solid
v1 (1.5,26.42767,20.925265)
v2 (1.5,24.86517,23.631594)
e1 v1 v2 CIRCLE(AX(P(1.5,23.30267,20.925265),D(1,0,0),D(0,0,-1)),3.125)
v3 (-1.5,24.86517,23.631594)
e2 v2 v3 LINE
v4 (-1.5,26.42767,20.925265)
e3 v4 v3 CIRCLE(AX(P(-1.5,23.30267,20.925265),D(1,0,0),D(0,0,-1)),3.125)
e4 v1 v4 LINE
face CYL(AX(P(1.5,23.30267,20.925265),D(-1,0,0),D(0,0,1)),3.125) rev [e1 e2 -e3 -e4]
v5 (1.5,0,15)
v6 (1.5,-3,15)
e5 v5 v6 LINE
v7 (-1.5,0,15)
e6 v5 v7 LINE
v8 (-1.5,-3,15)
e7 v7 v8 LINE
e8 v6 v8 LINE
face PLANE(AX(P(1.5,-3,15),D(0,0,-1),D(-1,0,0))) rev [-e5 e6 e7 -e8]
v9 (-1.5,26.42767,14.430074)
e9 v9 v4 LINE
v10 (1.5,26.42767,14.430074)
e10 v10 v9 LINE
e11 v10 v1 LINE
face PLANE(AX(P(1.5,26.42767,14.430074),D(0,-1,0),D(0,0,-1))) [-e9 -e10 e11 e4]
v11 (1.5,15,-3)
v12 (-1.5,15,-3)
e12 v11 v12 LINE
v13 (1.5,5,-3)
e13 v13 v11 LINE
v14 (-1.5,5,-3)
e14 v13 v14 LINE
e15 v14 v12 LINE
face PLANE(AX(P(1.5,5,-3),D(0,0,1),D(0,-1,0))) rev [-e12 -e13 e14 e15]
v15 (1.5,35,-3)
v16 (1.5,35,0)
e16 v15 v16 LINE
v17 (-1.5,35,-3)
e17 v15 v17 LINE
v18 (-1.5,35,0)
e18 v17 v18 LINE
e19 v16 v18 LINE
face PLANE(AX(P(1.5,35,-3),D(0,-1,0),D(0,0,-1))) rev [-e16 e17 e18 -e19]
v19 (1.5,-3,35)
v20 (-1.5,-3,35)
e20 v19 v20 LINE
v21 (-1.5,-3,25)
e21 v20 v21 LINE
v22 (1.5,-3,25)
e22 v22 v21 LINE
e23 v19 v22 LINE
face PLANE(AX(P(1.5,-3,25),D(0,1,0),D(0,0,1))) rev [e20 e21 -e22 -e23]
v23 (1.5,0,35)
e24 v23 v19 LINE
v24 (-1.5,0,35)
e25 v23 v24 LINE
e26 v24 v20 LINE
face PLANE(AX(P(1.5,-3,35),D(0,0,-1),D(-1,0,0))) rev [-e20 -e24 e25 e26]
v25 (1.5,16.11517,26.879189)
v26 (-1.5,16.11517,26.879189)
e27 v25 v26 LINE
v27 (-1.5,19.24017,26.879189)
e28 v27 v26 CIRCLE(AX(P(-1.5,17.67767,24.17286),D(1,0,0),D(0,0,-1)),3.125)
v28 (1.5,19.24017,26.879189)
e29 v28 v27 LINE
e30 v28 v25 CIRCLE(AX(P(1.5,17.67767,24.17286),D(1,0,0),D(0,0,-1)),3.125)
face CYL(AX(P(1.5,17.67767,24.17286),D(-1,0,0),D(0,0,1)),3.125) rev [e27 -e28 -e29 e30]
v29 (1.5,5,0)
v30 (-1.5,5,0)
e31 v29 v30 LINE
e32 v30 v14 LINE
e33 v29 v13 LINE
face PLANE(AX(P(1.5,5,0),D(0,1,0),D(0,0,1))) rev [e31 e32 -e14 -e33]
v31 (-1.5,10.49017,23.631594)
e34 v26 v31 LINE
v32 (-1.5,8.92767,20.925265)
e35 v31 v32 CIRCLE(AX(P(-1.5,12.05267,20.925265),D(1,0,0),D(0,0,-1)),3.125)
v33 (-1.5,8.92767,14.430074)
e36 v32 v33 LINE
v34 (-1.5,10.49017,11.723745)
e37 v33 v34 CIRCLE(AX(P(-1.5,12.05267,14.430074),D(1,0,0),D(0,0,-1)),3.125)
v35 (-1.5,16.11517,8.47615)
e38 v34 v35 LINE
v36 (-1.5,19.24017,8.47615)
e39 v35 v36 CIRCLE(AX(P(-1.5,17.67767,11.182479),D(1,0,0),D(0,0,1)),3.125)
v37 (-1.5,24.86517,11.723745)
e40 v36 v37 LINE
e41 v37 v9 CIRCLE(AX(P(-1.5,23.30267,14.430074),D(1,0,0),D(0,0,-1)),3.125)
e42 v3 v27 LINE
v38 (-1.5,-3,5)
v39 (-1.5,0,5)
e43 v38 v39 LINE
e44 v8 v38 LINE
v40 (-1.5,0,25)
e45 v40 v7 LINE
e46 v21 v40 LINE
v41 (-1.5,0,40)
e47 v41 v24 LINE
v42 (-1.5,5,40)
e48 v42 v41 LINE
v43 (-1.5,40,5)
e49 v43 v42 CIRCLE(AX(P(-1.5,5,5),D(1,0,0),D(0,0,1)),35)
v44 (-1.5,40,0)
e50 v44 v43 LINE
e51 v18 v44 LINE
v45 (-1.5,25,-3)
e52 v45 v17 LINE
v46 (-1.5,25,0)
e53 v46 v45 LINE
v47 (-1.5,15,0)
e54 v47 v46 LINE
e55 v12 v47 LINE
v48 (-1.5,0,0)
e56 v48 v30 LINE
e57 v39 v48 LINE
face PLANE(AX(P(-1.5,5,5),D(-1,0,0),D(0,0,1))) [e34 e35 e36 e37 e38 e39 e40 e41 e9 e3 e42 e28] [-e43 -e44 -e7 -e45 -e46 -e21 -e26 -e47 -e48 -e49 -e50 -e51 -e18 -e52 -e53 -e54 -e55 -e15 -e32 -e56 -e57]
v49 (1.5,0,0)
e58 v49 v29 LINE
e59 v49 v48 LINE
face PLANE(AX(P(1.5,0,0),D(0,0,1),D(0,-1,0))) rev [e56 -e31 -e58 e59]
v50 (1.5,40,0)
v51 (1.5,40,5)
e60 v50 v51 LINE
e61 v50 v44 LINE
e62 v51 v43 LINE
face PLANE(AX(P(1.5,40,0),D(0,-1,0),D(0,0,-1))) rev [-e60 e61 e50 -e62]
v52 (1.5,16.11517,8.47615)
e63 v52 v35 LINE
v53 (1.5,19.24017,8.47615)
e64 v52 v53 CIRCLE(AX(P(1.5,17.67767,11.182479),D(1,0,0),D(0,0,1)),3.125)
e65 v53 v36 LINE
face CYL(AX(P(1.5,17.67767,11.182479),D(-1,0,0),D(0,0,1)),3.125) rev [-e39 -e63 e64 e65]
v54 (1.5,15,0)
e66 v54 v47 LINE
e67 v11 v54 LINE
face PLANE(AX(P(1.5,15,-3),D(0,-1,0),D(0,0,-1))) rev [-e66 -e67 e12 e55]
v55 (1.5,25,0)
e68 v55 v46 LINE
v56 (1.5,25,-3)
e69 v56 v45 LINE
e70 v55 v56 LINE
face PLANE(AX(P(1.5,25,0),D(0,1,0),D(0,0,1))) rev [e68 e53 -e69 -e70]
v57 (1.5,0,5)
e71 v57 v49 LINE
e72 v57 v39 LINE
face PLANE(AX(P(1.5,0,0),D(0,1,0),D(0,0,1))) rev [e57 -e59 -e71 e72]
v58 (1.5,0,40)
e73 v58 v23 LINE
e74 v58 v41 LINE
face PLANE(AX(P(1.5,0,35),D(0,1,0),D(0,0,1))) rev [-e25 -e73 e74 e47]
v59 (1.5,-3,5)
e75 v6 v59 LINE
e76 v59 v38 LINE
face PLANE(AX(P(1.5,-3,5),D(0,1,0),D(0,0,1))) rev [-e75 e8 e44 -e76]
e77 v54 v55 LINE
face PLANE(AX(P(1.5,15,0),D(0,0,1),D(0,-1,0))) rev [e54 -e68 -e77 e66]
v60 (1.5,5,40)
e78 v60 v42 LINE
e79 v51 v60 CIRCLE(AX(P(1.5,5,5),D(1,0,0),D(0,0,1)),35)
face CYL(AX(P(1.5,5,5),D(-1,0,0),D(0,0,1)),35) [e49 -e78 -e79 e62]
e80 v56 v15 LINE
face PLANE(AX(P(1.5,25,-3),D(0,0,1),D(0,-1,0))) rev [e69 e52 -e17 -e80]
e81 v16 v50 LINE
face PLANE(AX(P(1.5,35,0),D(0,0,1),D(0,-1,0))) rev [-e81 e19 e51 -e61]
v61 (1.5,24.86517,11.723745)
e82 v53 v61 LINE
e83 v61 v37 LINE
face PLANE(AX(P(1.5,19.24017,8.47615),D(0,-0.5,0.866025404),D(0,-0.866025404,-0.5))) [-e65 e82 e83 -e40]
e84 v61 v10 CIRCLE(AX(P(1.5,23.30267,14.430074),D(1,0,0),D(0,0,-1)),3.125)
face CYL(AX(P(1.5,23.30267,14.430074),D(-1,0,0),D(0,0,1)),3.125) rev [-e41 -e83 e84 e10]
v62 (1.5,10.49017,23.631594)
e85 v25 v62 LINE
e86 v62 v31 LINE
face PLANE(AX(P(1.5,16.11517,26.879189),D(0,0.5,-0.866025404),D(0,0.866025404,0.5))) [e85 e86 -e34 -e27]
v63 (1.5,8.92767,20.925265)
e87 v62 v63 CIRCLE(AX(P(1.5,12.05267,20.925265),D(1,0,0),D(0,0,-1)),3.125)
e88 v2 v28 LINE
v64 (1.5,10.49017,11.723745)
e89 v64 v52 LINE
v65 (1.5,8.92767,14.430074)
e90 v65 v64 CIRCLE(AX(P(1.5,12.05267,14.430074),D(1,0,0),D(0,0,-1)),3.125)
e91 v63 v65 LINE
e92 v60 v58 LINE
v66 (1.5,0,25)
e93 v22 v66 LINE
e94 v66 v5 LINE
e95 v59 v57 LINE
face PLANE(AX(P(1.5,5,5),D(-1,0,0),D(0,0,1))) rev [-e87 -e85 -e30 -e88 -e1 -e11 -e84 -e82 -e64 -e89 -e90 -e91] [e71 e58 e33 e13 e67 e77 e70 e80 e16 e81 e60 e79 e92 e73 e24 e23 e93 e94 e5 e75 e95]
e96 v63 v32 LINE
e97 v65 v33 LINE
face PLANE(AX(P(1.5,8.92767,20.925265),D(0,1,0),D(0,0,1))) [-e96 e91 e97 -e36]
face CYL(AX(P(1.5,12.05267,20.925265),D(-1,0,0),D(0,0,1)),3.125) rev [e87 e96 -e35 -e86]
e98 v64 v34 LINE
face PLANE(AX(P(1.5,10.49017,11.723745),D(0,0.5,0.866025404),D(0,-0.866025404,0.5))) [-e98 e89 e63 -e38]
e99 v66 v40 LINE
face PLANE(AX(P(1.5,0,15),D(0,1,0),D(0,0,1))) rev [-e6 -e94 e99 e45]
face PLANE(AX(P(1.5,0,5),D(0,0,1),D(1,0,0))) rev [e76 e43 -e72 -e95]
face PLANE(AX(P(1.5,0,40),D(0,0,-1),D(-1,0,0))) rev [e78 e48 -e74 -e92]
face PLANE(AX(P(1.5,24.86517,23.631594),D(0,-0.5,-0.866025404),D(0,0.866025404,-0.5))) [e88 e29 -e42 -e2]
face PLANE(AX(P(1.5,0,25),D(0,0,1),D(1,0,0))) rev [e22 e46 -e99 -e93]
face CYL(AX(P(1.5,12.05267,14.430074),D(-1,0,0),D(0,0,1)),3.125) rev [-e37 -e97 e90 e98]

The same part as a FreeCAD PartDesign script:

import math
import FreeCAD as App
import Part
import Sketcher
from FreeCAD import Vector
Q = App.Units.Quantity

doc = App.newDocument("Part")
params = doc.addObject("Spreadsheet::Sheet", "Params")
for row, (alias, value) in enumerate([
    ("sketch1_radius", "35 mm"),
    ("sketch1_width", "5 mm"),
    ("sketch1_width2", "3 mm"),
    ("pad1_length", "3 mm"),
], start=1):
    params.set(f"A{row}", alias)
    params.set(f"B{row}", "=" + value)
    params.setAlias(f"B{row}", alias)

body = doc.addObject("PartDesign::Body", "Body")

sketch1 = doc.addObject("Sketcher::SketchObject", "Sketch")
body.addObject(sketch1)
sketch1.AttachmentSupport = (doc.YZ_Plane, [""])
sketch1.MapMode = "FlatFace"
sketch1.addGeometry(Part.LineSegment(Vector(0, 5, 0), Vector(0, 0, 0)), False)
sketch1.addGeometry(Part.LineSegment(Vector(0, 0, 0), Vector(5, 0, 0)), False)
sketch1.addGeometry(Part.LineSegment(Vector(5, 0, 0), Vector(5, -3, 0)), False)
sketch1.addGeometry(Part.LineSegment(Vector(5, -3, 0), Vector(15, -3, 0)), False)
sketch1.addGeometry(Part.LineSegment(Vector(15, -3, 0), Vector(15, 0, 0)), False)
sketch1.addGeometry(Part.LineSegment(Vector(15, 0, 0), Vector(25, 0, 0)), False)
sketch1.addGeometry(Part.LineSegment(Vector(25, 0, 0), Vector(25, -3, 0)), False)
sketch1.addGeometry(Part.LineSegment(Vector(25, -3, 0), Vector(35, -3, 0)), False)
sketch1.addGeometry(Part.LineSegment(Vector(35, -3, 0), Vector(35, 0, 0)), False)
sketch1.addGeometry(Part.LineSegment(Vector(35, 0, 0), Vector(40, 0, 0)), False)
sketch1.addGeometry(Part.LineSegment(Vector(40, 0, 0), Vector(40, 5, 0)), False)
sketch1.addGeometry(Part.ArcOfCircle(Part.Circle(Vector(5, 5, 0), Vector(0, 0, 1), 35), math.radians(0), math.radians(90)), False)
sketch1.addGeometry(Part.LineSegment(Vector(5, 40, 0), Vector(0, 40, 0)), False)
sketch1.addGeometry(Part.LineSegment(Vector(0, 40, 0), Vector(0, 35, 0)), False)
sketch1.addGeometry(Part.LineSegment(Vector(0, 35, 0), Vector(-3, 35, 0)), False)
sketch1.addGeometry(Part.LineSegment(Vector(-3, 35, 0), Vector(-3, 25, 0)), False)
sketch1.addGeometry(Part.LineSegment(Vector(-3, 25, 0), Vector(0, 25, 0)), False)
sketch1.addGeometry(Part.LineSegment(Vector(0, 25, 0), Vector(0, 15, 0)), False)
sketch1.addGeometry(Part.LineSegment(Vector(0, 15, 0), Vector(-3, 15, 0)), False)
sketch1.addGeometry(Part.LineSegment(Vector(-3, 15, 0), Vector(-3, 5, 0)), False)
sketch1.addGeometry(Part.LineSegment(Vector(-3, 5, 0), Vector(0, 5, 0)), False)
sketch1.addGeometry(Part.ArcOfCircle(Part.Circle(Vector(17.67767, 11.182479, 0), Vector(0, 0, 1), 3.125), math.radians(-120), math.radians(-60)), False)
sketch1.addGeometry(Part.LineSegment(Vector(16.11517, 8.47615, 0), Vector(10.49017, 11.723745, 0)), False)
sketch1.addGeometry(Part.ArcOfCircle(Part.Circle(Vector(12.05267, 14.430074, 0), Vector(0, 0, 1), 3.125), math.radians(180), math.radians(240)), False)
sketch1.addGeometry(Part.LineSegment(Vector(8.92767, 14.430074, 0), Vector(8.92767, 20.925265, 0)), False)
sketch1.addGeometry(Part.ArcOfCircle(Part.Circle(Vector(12.05267, 20.925265, 0), Vector(0, 0, 1), 3.125), math.radians(120), math.radians(180)), False)
sketch1.addGeometry(Part.LineSegment(Vector(10.49017, 23.631594, 0), Vector(16.11517, 26.879189, 0)), False)
sketch1.addGeometry(Part.ArcOfCircle(Part.Circle(Vector(17.67767, 24.17286, 0), Vector(0, 0, 1), 3.125), math.radians(60), math.radians(120)), False)
sketch1.addGeometry(Part.LineSegment(Vector(19.24017, 26.879189, 0), Vector(24.86517, 23.631594, 0)), False)
sketch1.addGeometry(Part.ArcOfCircle(Part.Circle(Vector(23.30267, 20.925265, 0), Vector(0, 0, 1), 3.125), math.radians(0), math.radians(60)), False)
sketch1.addGeometry(Part.LineSegment(Vector(26.42767, 20.925265, 0), Vector(26.42767, 14.430074, 0)), False)
sketch1.addGeometry(Part.ArcOfCircle(Part.Circle(Vector(23.30267, 14.430074, 0), Vector(0, 0, 1), 3.125), math.radians(-60), math.radians(0)), False)
sketch1.addGeometry(Part.LineSegment(Vector(24.86517, 11.723745, 0), Vector(19.24017, 8.47615, 0)), False)
sketch1.addConstraint(Sketcher.Constraint("Coincident", 0, 2, 1, 1))
sketch1.addConstraint(Sketcher.Constraint("Coincident", 1, 2, 2, 1))
sketch1.addConstraint(Sketcher.Constraint("Coincident", 2, 2, 3, 1))
sketch1.addConstraint(Sketcher.Constraint("Coincident", 3, 2, 4, 1))
sketch1.addConstraint(Sketcher.Constraint("Coincident", 4, 2, 5, 1))
sketch1.addConstraint(Sketcher.Constraint("Coincident", 5, 2, 6, 1))
sketch1.addConstraint(Sketcher.Constraint("Coincident", 6, 2, 7, 1))
sketch1.addConstraint(Sketcher.Constraint("Coincident", 7, 2, 8, 1))
sketch1.addConstraint(Sketcher.Constraint("Coincident", 8, 2, 9, 1))
sketch1.addConstraint(Sketcher.Constraint("Coincident", 9, 2, 10, 1))
sketch1.addConstraint(Sketcher.Constraint("Tangent", 10, 2, 11, 1))
sketch1.addConstraint(Sketcher.Constraint("Tangent", 11, 2, 12, 1))
sketch1.addConstraint(Sketcher.Constraint("Coincident", 12, 2, 13, 1))
sketch1.addConstraint(Sketcher.Constraint("Coincident", 13, 2, 14, 1))
sketch1.addConstraint(Sketcher.Constraint("Coincident", 14, 2, 15, 1))
sketch1.addConstraint(Sketcher.Constraint("Coincident", 15, 2, 16, 1))
sketch1.addConstraint(Sketcher.Constraint("Coincident", 16, 2, 17, 1))
sketch1.addConstraint(Sketcher.Constraint("Coincident", 17, 2, 18, 1))
sketch1.addConstraint(Sketcher.Constraint("Coincident", 18, 2, 19, 1))
sketch1.addConstraint(Sketcher.Constraint("Coincident", 19, 2, 20, 1))
sketch1.addConstraint(Sketcher.Constraint("Coincident", 20, 2, 0, 1))
sketch1.addConstraint(Sketcher.Constraint("Tangent", 21, 1, 22, 1))
sketch1.addConstraint(Sketcher.Constraint("Tangent", 22, 2, 23, 2))
sketch1.addConstraint(Sketcher.Constraint("Tangent", 23, 1, 24, 1))
sketch1.addConstraint(Sketcher.Constraint("Tangent", 24, 2, 25, 2))
sketch1.addConstraint(Sketcher.Constraint("Tangent", 25, 1, 26, 1))
sketch1.addConstraint(Sketcher.Constraint("Tangent", 26, 2, 27, 2))
sketch1.addConstraint(Sketcher.Constraint("Tangent", 27, 1, 28, 1))
sketch1.addConstraint(Sketcher.Constraint("Tangent", 28, 2, 29, 2))
sketch1.addConstraint(Sketcher.Constraint("Tangent", 29, 1, 30, 1))
sketch1.addConstraint(Sketcher.Constraint("Tangent", 30, 2, 31, 2))
sketch1.addConstraint(Sketcher.Constraint("Tangent", 31, 1, 32, 1))
sketch1.addConstraint(Sketcher.Constraint("Tangent", 32, 2, 21, 2))
sketch1.addConstraint(Sketcher.Constraint("Vertical", 0))
sketch1.addConstraint(Sketcher.Constraint("Horizontal", 1))
sketch1.addConstraint(Sketcher.Constraint("Vertical", 2))
sketch1.addConstraint(Sketcher.Constraint("Horizontal", 3))
sketch1.addConstraint(Sketcher.Constraint("Vertical", 4))
sketch1.addConstraint(Sketcher.Constraint("Horizontal", 5))
sketch1.addConstraint(Sketcher.Constraint("Vertical", 6))
sketch1.addConstraint(Sketcher.Constraint("Horizontal", 7))
sketch1.addConstraint(Sketcher.Constraint("Vertical", 8))
sketch1.addConstraint(Sketcher.Constraint("Horizontal", 9))
sketch1.addConstraint(Sketcher.Constraint("Vertical", 10))
sketch1.addConstraint(Sketcher.Constraint("Horizontal", 12))
sketch1.addConstraint(Sketcher.Constraint("Vertical", 13))
sketch1.addConstraint(Sketcher.Constraint("Horizontal", 14))
sketch1.addConstraint(Sketcher.Constraint("Vertical", 15))
sketch1.addConstraint(Sketcher.Constraint("Horizontal", 16))
sketch1.addConstraint(Sketcher.Constraint("Vertical", 17))
sketch1.addConstraint(Sketcher.Constraint("Horizontal", 18))
sketch1.addConstraint(Sketcher.Constraint("Vertical", 19))
sketch1.addConstraint(Sketcher.Constraint("Horizontal", 20))
sketch1.addConstraint(Sketcher.Constraint("Vertical", 24))
sketch1.addConstraint(Sketcher.Constraint("Vertical", 30))
sketch1.addConstraint(Sketcher.Constraint("Coincident", 0, 2, -1, 1))
sketch1.addConstraint(Sketcher.Constraint("Equal", 21, 23))
sketch1.addConstraint(Sketcher.Constraint("Equal", 23, 25))
sketch1.addConstraint(Sketcher.Constraint("Equal", 25, 27))
sketch1.addConstraint(Sketcher.Constraint("Equal", 27, 29))
sketch1.addConstraint(Sketcher.Constraint("Equal", 29, 31))
sketch1.addConstraint(Sketcher.Constraint("PointOnObject", 4, 2, -1))
sketch1.addConstraint(Sketcher.Constraint("PointOnObject", 8, 2, -1))
sketch1.addConstraint(Sketcher.Constraint("PointOnObject", 12, 2, -2))
sketch1.addConstraint(Sketcher.Constraint("PointOnObject", 16, 2, -2))
sketch1.addConstraint(Sketcher.Constraint("Parallel", 22, 28))
sketch1.addConstraint(Sketcher.Constraint("Parallel", 26, 32))
sketch1.addConstraint(Sketcher.Constraint("Horizontal", 25, 3, 29, 3))
sketch1.addConstraint(Sketcher.Constraint("Horizontal", 23, 3, 31, 3))
sketch1.addConstraint(Sketcher.Constraint("Horizontal", 3, 2, 6, 2))
sketch1.addConstraint(Sketcher.Constraint("Horizontal", 10, 2, 19, 2))
sketch1.addConstraint(Sketcher.Constraint("Horizontal", 26, 2, 27, 1))
sketch1.addConstraint(Sketcher.Constraint("Vertical", 11, 3, 1, 2))
sketch1.addConstraint(Sketcher.Constraint("Vertical", 15, 2, 18, 2))
sketch1.addConstraint(Sketcher.Constraint("Equal", 3, 5))
sketch1.addConstraint(Sketcher.Constraint("Equal", 5, 7))
sketch1.addConstraint(Sketcher.Constraint("Equal", 1, 9))
sketch1.addConstraint(Sketcher.Constraint("Equal", 12, 0))
sketch1.addConstraint(Sketcher.Constraint("Equal", 20, 2))
sketch1.addConstraint(Sketcher.Constraint("Equal", 10, 13))
sketch1.addConstraint(Sketcher.Constraint("Equal", 7, 15))
sketch1.addConstraint(Sketcher.Constraint("Equal", 15, 17))
sketch1.addConstraint(Sketcher.Constraint("Radius", 11, 35.0))
sketch1.addConstraint(Sketcher.Constraint("DistanceX", 1, 1, 1, 2, 5.0))
sketch1.addConstraint(Sketcher.Constraint("DistanceX", 14, 2, 14, 1, 3.0))
sketch1.addConstraint(Sketcher.Constraint("Angle", 22, Q("150 deg")))
sketch1.addConstraint(Sketcher.Constraint("Radius", 21, 3.125))
sketch1.addConstraint(Sketcher.Constraint("DistanceX", 25, 3, 29, 3, 11.25))
sketch1.addConstraint(Sketcher.Constraint("DistanceY", 24, 1, 24, 2, 6.495191))
sketch1.addConstraint(Sketcher.Constraint("DistanceX", -1, 1, 21, 3, 17.67767))
sketch1.addConstraint(Sketcher.Constraint("DistanceY", -1, 1, 21, 3, 11.182479))
sketch1.setExpression("Constraints[82]", "Params.sketch1_radius")
sketch1.setExpression("Constraints[83]", "Params.sketch1_width")
sketch1.setExpression("Constraints[84]", "Params.sketch1_width2")
pad1 = doc.addObject("PartDesign::Pad", "Pad")
body.addObject(pad1)
pad1.Profile = sketch1
pad1.setExpression("Length", "Params.pad1_length")
pad1.Midplane = True

doc.recompute()
